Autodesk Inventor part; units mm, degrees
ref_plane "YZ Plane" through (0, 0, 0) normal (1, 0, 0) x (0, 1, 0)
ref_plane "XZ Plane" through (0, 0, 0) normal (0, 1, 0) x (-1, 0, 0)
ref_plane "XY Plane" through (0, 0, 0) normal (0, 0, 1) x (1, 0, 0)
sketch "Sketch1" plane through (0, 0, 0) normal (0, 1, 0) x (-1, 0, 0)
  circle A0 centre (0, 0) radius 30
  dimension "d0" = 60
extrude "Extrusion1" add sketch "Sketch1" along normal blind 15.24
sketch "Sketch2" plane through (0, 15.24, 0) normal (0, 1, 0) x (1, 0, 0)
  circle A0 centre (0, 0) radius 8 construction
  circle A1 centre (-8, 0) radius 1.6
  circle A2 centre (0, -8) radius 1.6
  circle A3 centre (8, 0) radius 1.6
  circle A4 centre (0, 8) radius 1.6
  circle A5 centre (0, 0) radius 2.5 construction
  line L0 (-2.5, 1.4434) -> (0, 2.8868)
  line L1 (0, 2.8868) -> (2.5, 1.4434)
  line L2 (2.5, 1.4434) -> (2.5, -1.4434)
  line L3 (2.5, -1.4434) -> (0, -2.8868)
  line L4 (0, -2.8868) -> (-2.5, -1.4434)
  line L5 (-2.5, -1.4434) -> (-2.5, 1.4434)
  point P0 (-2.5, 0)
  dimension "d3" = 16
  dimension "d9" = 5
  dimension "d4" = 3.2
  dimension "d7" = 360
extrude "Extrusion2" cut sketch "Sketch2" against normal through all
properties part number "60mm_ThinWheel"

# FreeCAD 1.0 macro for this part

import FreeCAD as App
import Part
import Sketcher
Q = App.Units.Quantity


def add_polygon(sketch, points):
    """Adds a closed chain of lines whose ends are joined by coincident constraints."""
    first, n = sketch.GeometryCount, len(points)
    for a, b in zip(points, points[1:] + points[:1]):
        sketch.addGeometry(Part.LineSegment(App.Vector(*a, 0), App.Vector(*b, 0)), False)
    for i in range(n):
        sketch.addConstraint(Sketcher.Constraint("Coincident", first + i, 2, first + (i + 1) % n, 1))

doc = App.newDocument("Part")
body = doc.addObject("PartDesign::Body", "Body")

# Sketch on XZ plane
sketch1 = body.newObject("Sketcher::SketchObject", "Sketch")
sketch1.AttachmentSupport = (doc.getObject("XZ_Plane"), [""])
sketch1.MapMode = "FlatFace"
sketch1.addGeometry(Part.Circle(App.Vector(0, 0, 0), App.Vector(0, 0, 1), 30), False)
sketch1.addConstraint([
    Sketcher.Constraint("Coincident", 0, 3, -1, 1),
    Sketcher.Constraint("Diameter", 0, Q("60 mm")),
])
pad1 = body.newObject("PartDesign::Pad", "Pad")
pad1.Profile = sketch1
pad1.Length = 15.24
pad1.Reversed = True

# Sketch on XZ plane
sketch2 = body.newObject("Sketcher::SketchObject", "Sketch001")
sketch2.AttachmentSupport = (doc.getObject("XZ_Plane"), [""])
sketch2.MapMode = "FlatFace"
sketch2.AttachmentOffset = App.Placement(App.Vector(0, 0, -15.24), App.Rotation())
sketch2.addGeometry(Part.Circle(App.Vector(-8, 0, 0), App.Vector(0, 0, 1), 1.6), False)  # 0
sketch2.addGeometry(Part.Circle(App.Vector(0, 8, 0), App.Vector(0, 0, 1), 1.6), False)  # 1
sketch2.addGeometry(Part.Circle(App.Vector(8, 0, 0), App.Vector(0, 0, 1), 1.6), False)  # 2
sketch2.addGeometry(Part.Circle(App.Vector(0, -8, 0), App.Vector(0, 0, 1), 1.6), False)  # 3
add_polygon(sketch2, [(0, -2.9), (-2.5, -1.4), (-2.5, 1.4), (0, 2.9), (2.5, 1.4), (2.5, -1.4)])  # lines 4-9
sketch2.addConstraint([
    Sketcher.Constraint("Vertical", 5),
    Sketcher.Constraint("Vertical", 8),
    Sketcher.Constraint("Equal", 0, 1),
    Sketcher.Constraint("Equal", 1, 2),
    Sketcher.Constraint("Equal", 2, 3),
    Sketcher.Constraint("Symmetric", 0, 3, 2, 3, -1, 1),
    Sketcher.Constraint("Symmetric", 1, 3, 3, 3, -1, 1),
    Sketcher.Constraint("Symmetric", 4, 2, 7, 2, -1, 1),
    Sketcher.Constraint("Symmetric", 6, 2, 9, 2, -1, 1),
    Sketcher.Constraint("PointOnObject", 0, 3, -1),
    Sketcher.Constraint("PointOnObject", 1, 3, -2),
    Sketcher.Constraint("PointOnObject", 6, 2, -2),
    Sketcher.Constraint("Parallel", 6, 9),
    Sketcher.Constraint("Horizontal", 5, 2, 7, 2),
    Sketcher.Constraint("Diameter", 0, Q("3.2 mm")),
    Sketcher.Constraint("DistanceX", 0, 3, 2, 3, Q("16 mm")),
    Sketcher.Constraint("DistanceY", 3, 3, 1, 3, Q("16 mm")),
    Sketcher.Constraint("DistanceX", 5, 2, 7, 2, Q("5 mm")),
    Sketcher.Constraint("Angle", 4, Q("149.9996 deg")),
    Sketcher.Constraint("DistanceY", 5, 1, 5, 2, Q("2.8868 mm")),
])
pocket1 = body.newObject("PartDesign::Pocket", "Pocket")
pocket1.Profile = sketch2
pocket1.Type = "ThroughAll"
pocket1.Reversed = True

doc.recompute()
